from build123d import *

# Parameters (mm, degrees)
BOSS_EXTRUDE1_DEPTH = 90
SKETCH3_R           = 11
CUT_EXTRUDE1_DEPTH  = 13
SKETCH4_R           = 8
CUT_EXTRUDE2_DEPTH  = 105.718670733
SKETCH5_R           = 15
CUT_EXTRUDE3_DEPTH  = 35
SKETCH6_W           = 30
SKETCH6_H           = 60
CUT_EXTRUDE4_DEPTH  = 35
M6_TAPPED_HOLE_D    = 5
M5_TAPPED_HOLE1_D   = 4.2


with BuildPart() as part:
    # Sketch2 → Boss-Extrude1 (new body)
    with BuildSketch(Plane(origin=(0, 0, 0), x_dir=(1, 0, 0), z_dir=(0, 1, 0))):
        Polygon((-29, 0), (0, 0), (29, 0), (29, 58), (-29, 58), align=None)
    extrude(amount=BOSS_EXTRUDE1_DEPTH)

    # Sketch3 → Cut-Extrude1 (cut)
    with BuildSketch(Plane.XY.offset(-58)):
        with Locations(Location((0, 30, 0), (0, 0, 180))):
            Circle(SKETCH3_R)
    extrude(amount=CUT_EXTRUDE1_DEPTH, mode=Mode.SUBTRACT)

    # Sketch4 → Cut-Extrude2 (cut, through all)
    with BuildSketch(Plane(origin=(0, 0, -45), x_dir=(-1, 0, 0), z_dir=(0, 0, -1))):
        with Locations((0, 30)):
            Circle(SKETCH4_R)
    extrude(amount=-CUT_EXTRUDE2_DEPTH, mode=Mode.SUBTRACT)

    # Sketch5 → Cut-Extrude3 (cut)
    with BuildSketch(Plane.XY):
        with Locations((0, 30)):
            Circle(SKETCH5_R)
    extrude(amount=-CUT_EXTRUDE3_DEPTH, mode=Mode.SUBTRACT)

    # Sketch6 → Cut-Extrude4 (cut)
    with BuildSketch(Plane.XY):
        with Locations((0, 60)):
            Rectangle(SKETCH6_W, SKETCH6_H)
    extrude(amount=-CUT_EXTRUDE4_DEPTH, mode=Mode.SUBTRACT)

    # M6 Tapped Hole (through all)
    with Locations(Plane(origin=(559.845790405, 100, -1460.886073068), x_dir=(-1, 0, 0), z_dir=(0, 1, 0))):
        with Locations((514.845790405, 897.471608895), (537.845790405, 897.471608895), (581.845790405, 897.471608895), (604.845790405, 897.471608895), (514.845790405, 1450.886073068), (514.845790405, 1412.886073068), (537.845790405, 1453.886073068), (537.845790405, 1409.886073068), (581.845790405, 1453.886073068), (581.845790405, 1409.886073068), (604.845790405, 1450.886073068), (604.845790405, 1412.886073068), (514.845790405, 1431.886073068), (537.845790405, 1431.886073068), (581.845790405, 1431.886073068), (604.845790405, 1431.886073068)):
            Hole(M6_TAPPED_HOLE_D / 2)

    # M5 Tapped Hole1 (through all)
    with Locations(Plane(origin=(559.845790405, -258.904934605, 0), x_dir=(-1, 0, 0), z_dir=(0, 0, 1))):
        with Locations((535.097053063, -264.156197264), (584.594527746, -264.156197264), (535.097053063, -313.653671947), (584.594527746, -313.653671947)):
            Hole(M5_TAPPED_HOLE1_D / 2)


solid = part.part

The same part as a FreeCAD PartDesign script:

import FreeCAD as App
import Part
import Sketcher

doc = App.newDocument("Part")
params = doc.addObject("Spreadsheet::Sheet", "Params")
for row, (alias, value) in enumerate([
    ("sketch1_width", "58 mm"),
    ("pad1_length", "90 mm"),
    ("sketch2_diameter", "22 mm"),
    ("pocket1_length", "13 mm"),
    ("sketch3_diameter", "16 mm"),
    ("sketch4_diameter", "30 mm"),
    ("pocket3_length", "35 mm"),
    ("sketch5_width", "30 mm"),
    ("sketch5_height", "60 mm"),
    ("pocket4_length", "35 mm"),
    ("sketch6_diameter", "5 mm"),
    ("hole_diameter", "5 mm"),
    ("sketch7_diameter", "4.2 mm"),
    ("hole2_diameter", "4.2 mm"),
], start=1):
    params.set(f"A{row}", alias)
    params.set(f"B{row}", "=" + value)
    params.setAlias(f"B{row}", alias)

body = doc.addObject("PartDesign::Body", "Body")

# Sketch on XZ plane
sketch1 = body.newObject("Sketcher::SketchObject", "Sketch")
sketch1.AttachmentSupport = (doc.getObject("XZ_Plane"), [""])
sketch1.MapMode = "FlatFace"
sketch1.addGeometry([
    Part.LineSegment(App.Vector(-29, 0, 0), App.Vector(29, 0, 0)),
    Part.LineSegment(App.Vector(29, 0, 0), App.Vector(29, -58, 0)),
    Part.LineSegment(App.Vector(29, -58, 0), App.Vector(-29, -58, 0)),
    Part.LineSegment(App.Vector(-29, -58, 0), App.Vector(-29, 0, 0)),
], False)
sketch1.addConstraint([
    Sketcher.Constraint("Coincident", 0, 2, 1, 1),
    Sketcher.Constraint("Coincident", 1, 2, 2, 1),
    Sketcher.Constraint("Coincident", 2, 2, 3, 1),
    Sketcher.Constraint("Coincident", 3, 2, 0, 1),
    Sketcher.Constraint("Horizontal", 0),
    Sketcher.Constraint("Vertical", 1),
    Sketcher.Constraint("Horizontal", 2),
    Sketcher.Constraint("Vertical", 3),
    Sketcher.Constraint("Symmetric", 0, 2, 3, 2, -1, 1),
    Sketcher.Constraint("Equal", 2, 1),
    Sketcher.Constraint("DistanceX", 0, 1, 0, 2, 58.0),
])
sketch1.setExpression("Constraints[10]", "Params.sketch1_width")
pad1 = body.newObject("PartDesign::Pad", "Pad")
pad1.Profile = sketch1
pad1.setExpression("Length", "Params.pad1_length")
pad1.Reversed = True

# Sketch on XY plane
sketch2 = body.newObject("Sketcher::SketchObject", "Sketch001")
sketch2.AttachmentSupport = (doc.getObject("XY_Plane"), [""])
sketch2.MapMode = "FlatFace"
sketch2.AttachmentOffset = App.Placement(App.Vector(0, 0, -58), App.Rotation())
sketch2.addGeometry(Part.Circle(App.Vector(0, 30, 0), App.Vector(0, 0, 1), 11), False)
sketch2.addConstraint([
    Sketcher.Constraint("PointOnObject", 0, 3, -2),
    Sketcher.Constraint("Diameter", 0, 22.0),
    Sketcher.Constraint("DistanceY", -1, 1, 0, 3, 30.0),
])
sketch2.setExpression("Constraints[1]", "Params.sketch2_diameter")
pocket1 = body.newObject("PartDesign::Pocket", "Pocket")
pocket1.Profile = sketch2
pocket1.setExpression("Length", "Params.pocket1_length")
pocket1.Reversed = True

# Sketch on XY plane
sketch3 = body.newObject("Sketcher::SketchObject", "Sketch002")
sketch3.AttachmentSupport = (doc.getObject("XY_Plane"), [""])
sketch3.MapMode = "FlatFace"
sketch3.AttachmentOffset = App.Placement(App.Vector(0, 0, -45), App.Rotation())
sketch3.addGeometry(Part.Circle(App.Vector(0, 30, 0), App.Vector(0, 0, 1), 8), False)
sketch3.addConstraint([
    Sketcher.Constraint("PointOnObject", 0, 3, -2),
    Sketcher.Constraint("Diameter", 0, 16.0),
    Sketcher.Constraint("DistanceY", -1, 1, 0, 3, 30.0),
])
sketch3.setExpression("Constraints[1]", "Params.sketch3_diameter")
pocket2 = body.newObject("PartDesign::Pocket", "Pocket001")
pocket2.Profile = sketch3
pocket2.Type = "ThroughAll"
pocket2.Reversed = True

# Sketch on XY plane
sketch4 = body.newObject("Sketcher::SketchObject", "Sketch003")
sketch4.AttachmentSupport = (doc.getObject("XY_Plane"), [""])
sketch4.MapMode = "FlatFace"
sketch4.addGeometry(Part.Circle(App.Vector(0, 30, 0), App.Vector(0, 0, 1), 15), False)
sketch4.addConstraint([
    Sketcher.Constraint("PointOnObject", 0, 3, -2),
    Sketcher.Constraint("Diameter", 0, 30.0),
    Sketcher.Constraint("DistanceY", -1, 1, 0, 3, 30.0),
])
sketch4.setExpression("Constraints[1]", "Params.sketch4_diameter")
pocket3 = body.newObject("PartDesign::Pocket", "Pocket002")
pocket3.Profile = sketch4
pocket3.setExpression("Length", "Params.pocket3_length")

# Sketch on XY plane
sketch5 = body.newObject("Sketcher::SketchObject", "Sketch004")
sketch5.AttachmentSupport = (doc.getObject("XY_Plane"), [""])
sketch5.MapMode = "FlatFace"
sketch5.addGeometry([
    Part.LineSegment(App.Vector(-15, 90, 0), App.Vector(-15, 30, 0)),
    Part.LineSegment(App.Vector(-15, 30, 0), App.Vector(15, 30, 0)),
    Part.LineSegment(App.Vector(15, 30, 0), App.Vector(15, 90, 0)),
    Part.LineSegment(App.Vector(15, 90, 0), App.Vector(-15, 90, 0)),
], False)
sketch5.addConstraint([
    Sketcher.Constraint("Coincident", 0, 2, 1, 1),
    Sketcher.Constraint("Coincident", 1, 2, 2, 1),
    Sketcher.Constraint("Coincident", 2, 2, 3, 1),
    Sketcher.Constraint("Coincident", 3, 2, 0, 1),
    Sketcher.Constraint("Vertical", 0),
    Sketcher.Constraint("Horizontal", 1),
    Sketcher.Constraint("Vertical", 2),
    Sketcher.Constraint("Horizontal", 3),
    Sketcher.Constraint("DistanceX", 1, 1, 1, 2, 30.0),
    Sketcher.Constraint("DistanceY", 0, 2, 0, 1, 60.0),
    Sketcher.Constraint("DistanceX", 0, 2, -1, 1, 15.0),
    Sketcher.Constraint("DistanceY", -1, 1, 0, 2, 30.0),
])
sketch5.setExpression("Constraints[8]", "Params.sketch5_width")
sketch5.setExpression("Constraints[9]", "Params.sketch5_height")
pocket4 = body.newObject("PartDesign::Pocket", "Pocket003")
pocket4.Profile = sketch5
pocket4.setExpression("Length", "Params.pocket4_length")

# Sketch on XZ plane
sketch6 = body.newObject("Sketcher::SketchObject", "Sketch005")
sketch6.AttachmentSupport = (doc.getObject("XZ_Plane"), [""])
sketch6.MapMode = "FlatFace"
sketch6.AttachmentOffset = App.Placement(App.Vector(0, 0, -100), App.Rotation())
sketch6.addGeometry([
    Part.Circle(App.Vector(45, -563.4, 0), App.Vector(0, 0, 1), 2.5),  # 0
    Part.Circle(App.Vector(22, -563.4, 0), App.Vector(0, 0, 1), 2.5),  # 1
    Part.Circle(App.Vector(-22, -563.4, 0), App.Vector(0, 0, 1), 2.5),  # 2
    Part.Circle(App.Vector(-45, -563.4, 0), App.Vector(0, 0, 1), 2.5),  # 3
    Part.Circle(App.Vector(45, -10, 0), App.Vector(0, 0, 1), 2.5),  # 4
    Part.Circle(App.Vector(45, -48, 0), App.Vector(0, 0, 1), 2.5),  # 5
    Part.Circle(App.Vector(22, -7, 0), App.Vector(0, 0, 1), 2.5),  # 6
    Part.Circle(App.Vector(22, -51, 0), App.Vector(0, 0, 1), 2.5),  # 7
    Part.Circle(App.Vector(-22, -7, 0), App.Vector(0, 0, 1), 2.5),  # 8
    Part.Circle(App.Vector(-22, -51, 0), App.Vector(0, 0, 1), 2.5),  # 9
    Part.Circle(App.Vector(-45, -10, 0), App.Vector(0, 0, 1), 2.5),  # 10
    Part.Circle(App.Vector(-45, -48, 0), App.Vector(0, 0, 1), 2.5),  # 11
    Part.Circle(App.Vector(45, -29, 0), App.Vector(0, 0, 1), 2.5),  # 12
    Part.Circle(App.Vector(22, -29, 0), App.Vector(0, 0, 1), 2.5),  # 13
    Part.Circle(App.Vector(-22, -29, 0), App.Vector(0, 0, 1), 2.5),  # 14
    Part.Circle(App.Vector(-45, -29, 0), App.Vector(0, 0, 1), 2.5),  # 15
], False)
sketch6.addConstraint([
    Sketcher.Constraint("Equal", 0, 1),
    Sketcher.Constraint("Equal", 1, 2),
    Sketcher.Constraint("Equal", 2, 3),
    Sketcher.Constraint("Equal", 3, 4),
    Sketcher.Constraint("Equal", 4, 5),
    Sketcher.Constraint("Equal", 5, 6),
    Sketcher.Constraint("Equal", 6, 7),
    Sketcher.Constraint("Equal", 7, 8),
    Sketcher.Constraint("Equal", 8, 9),
    Sketcher.Constraint("Equal", 9, 10),
    Sketcher.Constraint("Equal", 10, 11),
    Sketcher.Constraint("Equal", 11, 12),
    Sketcher.Constraint("Equal", 12, 13),
    Sketcher.Constraint("Equal", 13, 14),
    Sketcher.Constraint("Equal", 14, 15),
    Sketcher.Constraint("Symmetric", 1, 3, 2, 3, -2),
    Sketcher.Constraint("Symmetric", 0, 3, 3, 3, -2),
    Sketcher.Constraint("Symmetric", 6, 3, 8, 3, -2),
    Sketcher.Constraint("Symmetric", 7, 3, 9, 3, -2),
    Sketcher.Constraint("Symmetric", 4, 3, 10, 3, -2),
    Sketcher.Constraint("Symmetric", 5, 3, 11, 3, -2),
    Sketcher.Constraint("Symmetric", 13, 3, 14, 3, -2),
    Sketcher.Constraint("Symmetric", 12, 3, 15, 3, -2),
    Sketcher.Constraint("Horizontal", 0, 3, 1, 3),
    Sketcher.Constraint("Horizontal", 12, 3, 13, 3),
    Sketcher.Constraint("Vertical", 0, 3, 4, 3),
    Sketcher.Constraint("Vertical", 4, 3, 5, 3),
    Sketcher.Constraint("Vertical", 1, 3, 6, 3),
    Sketcher.Constraint("Vertical", 6, 3, 7, 3),
    Sketcher.Constraint("Vertical", 5, 3, 12, 3),
    Sketcher.Constraint("Vertical", 7, 3, 13, 3),
    Sketcher.Constraint("Diameter", 0, 5.0),
    Sketcher.Constraint("DistanceX", -1, 1, 0, 3, 45.0),
    Sketcher.Constraint("DistanceX", -1, 1, 1, 3, 22.0),
    Sketcher.Constraint("DistanceY", 4, 3, -1, 1, 10.0),
    Sketcher.Constraint("DistanceY", 5, 3, -1, 1, 48.0),
    Sketcher.Constraint("DistanceY", 6, 3, -1, 1, 7.0),
    Sketcher.Constraint("DistanceY", 7, 3, -1, 1, 51.0),
    Sketcher.Constraint("DistanceY", 12, 3, -1, 1, 29.0),
    Sketcher.Constraint("DistanceY", 0, 3, -1, 1, 563.414464),
])
sketch6.setExpression("Constraints[31]", "Params.sketch6_diameter")
doc.recompute()
hole = body.newObject("PartDesign::Hole", "Hole")
hole.Profile = sketch6
hole.ThreadType = "None"
hole.setExpression("Diameter", "Params.hole_diameter")
hole.DepthType = "ThroughAll"
hole.Reversed = True

# Sketch on XY plane
sketch7 = body.newObject("Sketcher::SketchObject", "Sketch006")
sketch7.AttachmentSupport = (doc.getObject("XY_Plane"), [""])
sketch7.MapMode = "FlatFace"
sketch7.addGeometry([
    Part.Circle(App.Vector(24.7, 5.3, 0), App.Vector(0, 0, 1), 2.1),
    Part.Circle(App.Vector(-24.7, 5.3, 0), App.Vector(0, 0, 1), 2.1),
    Part.Circle(App.Vector(24.7, 54.7, 0), App.Vector(0, 0, 1), 2.1),
    Part.Circle(App.Vector(-24.7, 54.7, 0), App.Vector(0, 0, 1), 2.1),
], False)
sketch7.addConstraint([
    Sketcher.Constraint("Equal", 0, 1),
    Sketcher.Constraint("Equal", 1, 2),
    Sketcher.Constraint("Equal", 2, 3),
    Sketcher.Constraint("Symmetric", 0, 3, 1, 3, -2),
    Sketcher.Constraint("Symmetric", 2, 3, 3, 3, -2),
    Sketcher.Constraint("Vertical", 0, 3, 2, 3),
    Sketcher.Constraint("Diameter", 0, 4.2),
    Sketcher.Constraint("DistanceX", -1, 1, 0, 3, 24.748737),
    Sketcher.Constraint("DistanceY", -1, 1, 0, 3, 5.251263),
    Sketcher.Constraint("DistanceY", -1, 1, 2, 3, 54.748737),
])
sketch7.setExpression("Constraints[6]", "Params.sketch7_diameter")
doc.recompute()
hole2 = body.newObject("PartDesign::Hole", "Hole001")
hole2.Profile = sketch7
hole2.ThreadType = "None"
hole2.setExpression("Diameter", "Params.hole2_diameter")
hole2.DepthType = "ThroughAll"

doc.recompute()
